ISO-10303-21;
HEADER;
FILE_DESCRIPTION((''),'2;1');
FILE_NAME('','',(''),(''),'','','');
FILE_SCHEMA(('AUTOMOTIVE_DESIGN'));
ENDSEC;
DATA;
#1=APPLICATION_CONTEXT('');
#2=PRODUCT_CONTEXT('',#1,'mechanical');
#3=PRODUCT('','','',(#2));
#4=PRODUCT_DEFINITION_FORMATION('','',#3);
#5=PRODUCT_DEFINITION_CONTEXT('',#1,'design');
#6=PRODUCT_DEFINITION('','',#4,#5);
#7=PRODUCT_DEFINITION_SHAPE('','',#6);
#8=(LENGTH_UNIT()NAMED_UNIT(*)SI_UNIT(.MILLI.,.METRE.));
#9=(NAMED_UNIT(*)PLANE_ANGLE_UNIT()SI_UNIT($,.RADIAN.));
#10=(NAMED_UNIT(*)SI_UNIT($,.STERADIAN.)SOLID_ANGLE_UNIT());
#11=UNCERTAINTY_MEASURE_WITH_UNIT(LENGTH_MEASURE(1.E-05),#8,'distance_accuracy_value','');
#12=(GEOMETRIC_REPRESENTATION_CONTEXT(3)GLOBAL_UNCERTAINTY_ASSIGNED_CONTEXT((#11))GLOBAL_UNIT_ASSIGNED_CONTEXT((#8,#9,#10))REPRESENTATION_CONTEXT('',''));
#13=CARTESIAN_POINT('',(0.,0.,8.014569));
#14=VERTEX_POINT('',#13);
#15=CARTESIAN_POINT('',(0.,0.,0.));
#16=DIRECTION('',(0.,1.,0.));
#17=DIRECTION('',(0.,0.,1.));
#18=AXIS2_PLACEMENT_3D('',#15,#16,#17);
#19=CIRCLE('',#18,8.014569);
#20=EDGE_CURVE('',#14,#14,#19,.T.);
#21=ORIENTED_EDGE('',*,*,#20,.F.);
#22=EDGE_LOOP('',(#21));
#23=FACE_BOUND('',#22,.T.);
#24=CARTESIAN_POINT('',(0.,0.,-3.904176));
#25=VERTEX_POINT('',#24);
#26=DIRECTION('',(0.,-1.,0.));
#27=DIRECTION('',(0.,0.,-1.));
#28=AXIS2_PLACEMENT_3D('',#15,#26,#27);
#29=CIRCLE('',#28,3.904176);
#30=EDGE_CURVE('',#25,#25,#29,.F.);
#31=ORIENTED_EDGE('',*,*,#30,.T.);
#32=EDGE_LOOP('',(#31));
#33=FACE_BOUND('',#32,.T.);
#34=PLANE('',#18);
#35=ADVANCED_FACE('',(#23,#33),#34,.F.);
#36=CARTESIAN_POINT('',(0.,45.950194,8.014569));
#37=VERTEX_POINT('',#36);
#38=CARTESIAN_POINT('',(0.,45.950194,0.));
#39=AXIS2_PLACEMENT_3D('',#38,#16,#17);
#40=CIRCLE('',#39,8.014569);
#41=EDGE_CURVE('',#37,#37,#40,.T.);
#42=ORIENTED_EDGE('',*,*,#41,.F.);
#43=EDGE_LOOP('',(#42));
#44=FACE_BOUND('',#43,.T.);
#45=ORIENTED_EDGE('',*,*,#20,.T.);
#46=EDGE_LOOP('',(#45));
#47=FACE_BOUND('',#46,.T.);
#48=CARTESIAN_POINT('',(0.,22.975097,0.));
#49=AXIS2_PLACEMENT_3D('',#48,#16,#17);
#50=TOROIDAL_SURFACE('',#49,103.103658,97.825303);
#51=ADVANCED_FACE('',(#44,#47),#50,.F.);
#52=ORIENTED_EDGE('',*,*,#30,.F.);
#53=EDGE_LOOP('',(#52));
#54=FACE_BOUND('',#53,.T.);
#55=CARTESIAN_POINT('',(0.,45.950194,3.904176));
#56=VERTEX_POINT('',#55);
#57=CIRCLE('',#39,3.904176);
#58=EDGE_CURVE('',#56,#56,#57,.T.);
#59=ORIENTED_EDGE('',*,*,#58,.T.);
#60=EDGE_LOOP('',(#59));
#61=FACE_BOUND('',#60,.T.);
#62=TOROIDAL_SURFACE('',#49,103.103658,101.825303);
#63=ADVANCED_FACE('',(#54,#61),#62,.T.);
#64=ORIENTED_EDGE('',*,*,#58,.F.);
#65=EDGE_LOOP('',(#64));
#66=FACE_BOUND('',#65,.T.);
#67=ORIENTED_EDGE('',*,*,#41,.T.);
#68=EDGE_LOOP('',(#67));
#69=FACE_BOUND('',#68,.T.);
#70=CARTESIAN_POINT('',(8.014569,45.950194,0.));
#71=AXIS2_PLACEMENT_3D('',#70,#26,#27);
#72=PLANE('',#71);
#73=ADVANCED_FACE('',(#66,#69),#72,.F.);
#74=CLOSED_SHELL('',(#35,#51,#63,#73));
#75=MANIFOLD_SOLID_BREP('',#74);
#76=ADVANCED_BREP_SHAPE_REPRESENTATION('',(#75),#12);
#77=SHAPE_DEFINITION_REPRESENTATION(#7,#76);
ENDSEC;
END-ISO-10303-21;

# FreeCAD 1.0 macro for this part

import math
import FreeCAD as App
import Part
import Sketcher

V = App.Vector
Q = App.Units.Quantity


def faces_at(feature, points):
    """Names of the faces that lie closest to the given points."""
    faces = feature.Shape.Faces
    near = lambda p: min(range(len(faces)), key=lambda i: faces[i].distToShape(Part.Vertex(*p))[0])
    return sorted({f"Face{near(p) + 1}" for p in points})

doc = App.newDocument("Part")
params = doc.addObject("Spreadsheet::Sheet", "Params")
for row, (alias, value) in enumerate([
    ("revolution_angle", "360 deg"),
    ("thickness_wall", "4 mm"),
], start=1):
    params.set(f"A{row}", alias)
    params.set(f"B{row}", "=" + value)
    params.setAlias(f"B{row}", alias)

body = doc.addObject("PartDesign::Body", "Body")

sketch1 = body.newObject("Sketcher::SketchObject", "Sketch")
sketch1.AttachmentSupport = (doc.getObject("XY_Plane"), [""])
sketch1.MapMode = "FlatFace"
sketch1.addGeometry([
    Part.LineSegment(V(0, 0, 0), V(8, 0, 0)),
    Part.ArcOfCircle(Part.Circle(V(103, 23, 0), V(0, 0, 1), 98), math.radians(166), math.radians(194)),
    Part.LineSegment(V(8, 46, 0), V(0, 46, 0)),
    Part.LineSegment(V(0, 46, 0), V(0, 0, 0)),
], False)
sketch1.addConstraint([
    Sketcher.Constraint("Coincident", 0, 2, 1, 2),
    Sketcher.Constraint("Coincident", 1, 1, 2, 1),
    Sketcher.Constraint("Coincident", 2, 2, 3, 1),
    Sketcher.Constraint("Coincident", 3, 2, 0, 1),
    Sketcher.Constraint("Horizontal", 0),
    Sketcher.Constraint("Horizontal", 2),
    Sketcher.Constraint("Vertical", 3),
    Sketcher.Constraint("Coincident", 3, 2, -1, 1),
    Sketcher.Constraint("Vertical", 0, 2, 1, 1),
    Sketcher.Constraint("Radius", 1, Q("97.825303 mm")),
    Sketcher.Constraint("DistanceX", 0, 1, 0, 2, Q("8.014569 mm")),
    Sketcher.Constraint("DistanceY", 3, 2, 3, 1, Q("45.950194 mm")),
])
revolution = body.newObject("PartDesign::Revolution", "Revolution")
revolution.Profile = sketch1
revolution.ReferenceAxis = (sketch1, ["V_Axis"])
revolution.setExpression("Angle", "Params.revolution_angle")
doc.recompute()

thickness = body.newObject("PartDesign::Thickness", "Thickness")
thickness.Base = (revolution, faces_at(revolution, [(0, 45.95, 0), (0, 0, 0)]))
thickness.setExpression("Value", "Params.thickness_wall")
thickness.Reversed = True
thickness.Join = "Intersection"

doc.recompute()
